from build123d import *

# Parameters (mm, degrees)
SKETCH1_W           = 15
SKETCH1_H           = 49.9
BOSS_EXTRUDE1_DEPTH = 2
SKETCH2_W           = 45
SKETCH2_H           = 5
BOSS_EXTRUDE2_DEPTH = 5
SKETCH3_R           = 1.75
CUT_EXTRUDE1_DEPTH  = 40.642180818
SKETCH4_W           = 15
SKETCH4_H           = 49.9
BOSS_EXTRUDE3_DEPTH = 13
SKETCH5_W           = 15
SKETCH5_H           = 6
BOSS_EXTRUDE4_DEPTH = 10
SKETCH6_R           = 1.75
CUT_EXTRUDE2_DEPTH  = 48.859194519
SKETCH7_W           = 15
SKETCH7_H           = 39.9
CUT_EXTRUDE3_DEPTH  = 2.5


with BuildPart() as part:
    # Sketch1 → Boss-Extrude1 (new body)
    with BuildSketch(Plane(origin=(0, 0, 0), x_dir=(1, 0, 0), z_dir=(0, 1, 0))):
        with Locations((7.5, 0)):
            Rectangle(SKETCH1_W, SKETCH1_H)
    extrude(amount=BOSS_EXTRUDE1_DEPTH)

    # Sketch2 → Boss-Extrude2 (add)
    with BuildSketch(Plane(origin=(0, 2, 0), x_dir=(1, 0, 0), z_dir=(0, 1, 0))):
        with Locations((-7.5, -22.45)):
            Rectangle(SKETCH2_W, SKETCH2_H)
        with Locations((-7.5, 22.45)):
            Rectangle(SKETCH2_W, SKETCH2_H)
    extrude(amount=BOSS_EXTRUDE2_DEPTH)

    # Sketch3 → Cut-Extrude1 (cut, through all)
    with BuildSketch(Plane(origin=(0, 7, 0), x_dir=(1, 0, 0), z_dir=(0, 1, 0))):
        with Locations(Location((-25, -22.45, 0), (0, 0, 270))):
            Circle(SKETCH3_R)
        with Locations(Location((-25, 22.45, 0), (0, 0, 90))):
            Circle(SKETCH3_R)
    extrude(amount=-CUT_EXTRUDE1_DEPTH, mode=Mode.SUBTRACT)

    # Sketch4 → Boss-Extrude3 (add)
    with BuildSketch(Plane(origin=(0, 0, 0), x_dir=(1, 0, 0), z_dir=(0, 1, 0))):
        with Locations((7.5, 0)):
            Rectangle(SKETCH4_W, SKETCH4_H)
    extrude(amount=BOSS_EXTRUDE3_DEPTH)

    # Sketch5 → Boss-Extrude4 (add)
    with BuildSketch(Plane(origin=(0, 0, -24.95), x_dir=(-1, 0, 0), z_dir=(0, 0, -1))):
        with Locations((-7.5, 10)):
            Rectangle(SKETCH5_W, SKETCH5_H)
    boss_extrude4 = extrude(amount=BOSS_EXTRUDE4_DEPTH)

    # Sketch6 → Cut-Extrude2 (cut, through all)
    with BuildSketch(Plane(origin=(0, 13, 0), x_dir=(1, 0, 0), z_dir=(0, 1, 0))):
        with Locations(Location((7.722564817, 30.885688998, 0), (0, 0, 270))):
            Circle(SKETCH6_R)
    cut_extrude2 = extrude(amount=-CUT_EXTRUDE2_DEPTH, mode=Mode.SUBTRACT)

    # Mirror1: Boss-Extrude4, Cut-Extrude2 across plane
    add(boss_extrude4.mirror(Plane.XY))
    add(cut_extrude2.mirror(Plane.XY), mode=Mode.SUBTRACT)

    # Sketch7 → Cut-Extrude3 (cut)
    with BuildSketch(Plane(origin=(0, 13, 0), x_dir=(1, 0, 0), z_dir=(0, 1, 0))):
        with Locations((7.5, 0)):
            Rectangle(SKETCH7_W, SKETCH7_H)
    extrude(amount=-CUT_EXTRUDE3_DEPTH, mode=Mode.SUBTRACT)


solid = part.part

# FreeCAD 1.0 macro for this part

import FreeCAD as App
import Part
import Sketcher
Q = App.Units.Quantity


def add_polygon(sketch, points):
    """Adds a closed chain of lines whose ends are joined by coincident constraints."""
    first, n = sketch.GeometryCount, len(points)
    for a, b in zip(points, points[1:] + points[:1]):
        sketch.addGeometry(Part.LineSegment(App.Vector(*a, 0), App.Vector(*b, 0)), False)
    for i in range(n):
        sketch.addConstraint(Sketcher.Constraint("Coincident", first + i, 2, first + (i + 1) % n, 1))

doc = App.newDocument("Part")
body = doc.addObject("PartDesign::Body", "Body")

# Sketch on XZ plane
sketch1 = body.newObject("Sketcher::SketchObject", "Sketch")
sketch1.AttachmentSupport = (doc.getObject("XZ_Plane"), [""])
sketch1.MapMode = "FlatFace"
add_polygon(sketch1, [(0, -25), (0, 25), (15, 25), (15, -25)])  # lines 0-3
sketch1.addConstraint([
    Sketcher.Constraint("Vertical", 0),
    Sketcher.Constraint("Horizontal", 1),
    Sketcher.Constraint("Vertical", 2),
    Sketcher.Constraint("Horizontal", 3),
    Sketcher.Constraint("Symmetric", 0, 2, 3, 2, -1, 1),
    Sketcher.Constraint("DistanceX", 1, 1, 1, 2, Q("15 mm")),
    Sketcher.Constraint("DistanceY", 0, 1, 0, 2, Q("49.9 mm")),
])
pad1 = body.newObject("PartDesign::Pad", "Pad")
pad1.Profile = sketch1
pad1.Length = 2
pad1.Reversed = True

# Sketch on XZ plane
sketch2 = body.newObject("Sketcher::SketchObject", "Sketch001")
sketch2.AttachmentSupport = (doc.getObject("XZ_Plane"), [""])
sketch2.MapMode = "FlatFace"
sketch2.AttachmentOffset = App.Placement(App.Vector(0, 0, -2), App.Rotation())
add_polygon(sketch2, [(-30, 20), (-30, 25), (15, 25), (15, 20)])  # lines 0-3
add_polygon(sketch2, [(-30, -25), (-30, -20), (15, -20), (15, -25)])  # lines 4-7
sketch2.addConstraint([
    Sketcher.Constraint("Vertical", 0),
    Sketcher.Constraint("Horizontal", 1),
    Sketcher.Constraint("Vertical", 2),
    Sketcher.Constraint("Horizontal", 3),
    Sketcher.Constraint("Vertical", 4),
    Sketcher.Constraint("Horizontal", 5),
    Sketcher.Constraint("Vertical", 6),
    Sketcher.Constraint("Horizontal", 7),
    Sketcher.Constraint("Symmetric", 3, 2, 4, 2, -1),
    Sketcher.Constraint("Symmetric", 1, 2, 6, 2, -1),
    Sketcher.Constraint("DistanceX", 1, 1, 1, 2, Q("45 mm")),
    Sketcher.Constraint("DistanceY", 0, 1, 0, 2, Q("5 mm")),
    Sketcher.Constraint("DistanceX", 0, 2, -1, 1, Q("30 mm")),
    Sketcher.Constraint("DistanceY", 4, 2, 3, 2, Q("39.9 mm")),
])
pad2 = body.newObject("PartDesign::Pad", "Pad001")
pad2.Profile = sketch2
pad2.Length = 5
pad2.Reversed = True

# Sketch on XZ plane
sketch3 = body.newObject("Sketcher::SketchObject", "Sketch002")
sketch3.AttachmentSupport = (doc.getObject("XZ_Plane"), [""])
sketch3.MapMode = "FlatFace"
sketch3.AttachmentOffset = App.Placement(App.Vector(0, 0, -7), App.Rotation())
sketch3.addGeometry([
    Part.Circle(App.Vector(-25, 22.4, 0), App.Vector(0, 0, 1), 1.8),
    Part.Circle(App.Vector(-25, -22.4, 0), App.Vector(0, 0, 1), 1.8),
], False)
sketch3.addConstraint([
    Sketcher.Constraint("Equal", 0, 1),
    Sketcher.Constraint("Symmetric", 0, 3, 1, 3, -1),
    Sketcher.Constraint("Diameter", 0, Q("3.5 mm")),
    Sketcher.Constraint("DistanceX", 0, 3, -1, 1, Q("25 mm")),
    Sketcher.Constraint("DistanceY", 1, 3, 0, 3, Q("44.9 mm")),
])
pocket1 = body.newObject("PartDesign::Pocket", "Pocket")
pocket1.Profile = sketch3
pocket1.Type = "ThroughAll"
pocket1.Reversed = True

# Sketch on XZ plane
sketch4 = body.newObject("Sketcher::SketchObject", "Sketch003")
sketch4.AttachmentSupport = (doc.getObject("XZ_Plane"), [""])
sketch4.MapMode = "FlatFace"
add_polygon(sketch4, [(0, -25), (0, 25), (15, 25), (15, -25)])  # lines 0-3
sketch4.addConstraint([
    Sketcher.Constraint("Vertical", 0),
    Sketcher.Constraint("Horizontal", 1),
    Sketcher.Constraint("Vertical", 2),
    Sketcher.Constraint("Horizontal", 3),
    Sketcher.Constraint("Symmetric", 0, 2, 3, 2, -1, 1),
    Sketcher.Constraint("DistanceX", 1, 1, 1, 2, Q("15 mm")),
    Sketcher.Constraint("DistanceY", 0, 1, 0, 2, Q("49.9 mm")),
])
pad3 = body.newObject("PartDesign::Pad", "Pad002")
pad3.Profile = sketch4
pad3.Length = 13
pad3.Reversed = True

# Sketch on XY plane
sketch5 = body.newObject("Sketcher::SketchObject", "Sketch004")
sketch5.AttachmentSupport = (doc.getObject("XY_Plane"), [""])
sketch5.MapMode = "FlatFace"
sketch5.AttachmentOffset = App.Placement(App.Vector(0, 0, -24.95), App.Rotation())
add_polygon(sketch5, [(15, 13), (15, 7), (0, 7), (0, 13)])  # lines 0-3
sketch5.addConstraint([
    Sketcher.Constraint("Vertical", 0),
    Sketcher.Constraint("Horizontal", 1),
    Sketcher.Constraint("Vertical", 2),
    Sketcher.Constraint("Horizontal", 3),
    Sketcher.Constraint("PointOnObject", 1, 2, -2),
    Sketcher.Constraint("DistanceX", 1, 2, 1, 1, Q("15 mm")),
    Sketcher.Constraint("DistanceY", 0, 2, 0, 1, Q("6 mm")),
    Sketcher.Constraint("DistanceY", -1, 1, 0, 2, Q("7 mm")),
])
pad4 = body.newObject("PartDesign::Pad", "Pad003")
pad4.Profile = sketch5
pad4.Length = 10
pad4.Reversed = True

# Sketch on XZ plane
sketch6 = body.newObject("Sketcher::SketchObject", "Sketch005")
sketch6.AttachmentSupport = (doc.getObject("XZ_Plane"), [""])
sketch6.MapMode = "FlatFace"
sketch6.AttachmentOffset = App.Placement(App.Vector(0, 0, -13), App.Rotation())
sketch6.addGeometry(Part.Circle(App.Vector(7.7, -30.9, 0), App.Vector(0, 0, 1), 1.8), False)
sketch6.addConstraint([
    Sketcher.Constraint("Diameter", 0, Q("3.5 mm")),
    Sketcher.Constraint("DistanceY", 0, 3, -1, 1, Q("30.885689 mm")),
    Sketcher.Constraint("DistanceX", -1, 1, 0, 3, Q("7.722565 mm")),
])
pocket2 = body.newObject("PartDesign::Pocket", "Pocket001")
pocket2.Profile = sketch6
pocket2.Type = "ThroughAll"
pocket2.Reversed = True
doc.recompute()

mirrored = body.newObject("PartDesign::Mirrored", "Mirrored")
mirrored.Originals = [pad4, pocket2]
mirrored.MirrorPlane = (doc.getObject("XY_Plane"), [""])
body.Tip = mirrored

# Sketch on XZ plane
sketch7 = body.newObject("Sketcher::SketchObject", "Sketch006")
sketch7.AttachmentSupport = (doc.getObject("XZ_Plane"), [""])
sketch7.MapMode = "FlatFace"
sketch7.AttachmentOffset = App.Placement(App.Vector(0, 0, -13), App.Rotation())
add_polygon(sketch7, [(0, -20), (0, 20), (15, 20), (15, -20)])  # lines 0-3
sketch7.addConstraint([
    Sketcher.Constraint("Vertical", 0),
    Sketcher.Constraint("Horizontal", 1),
    Sketcher.Constraint("Vertical", 2),
    Sketcher.Constraint("Horizontal", 3),
    Sketcher.Constraint("Symmetric", 0, 2, 3, 2, -1, 1),
    Sketcher.Constraint("DistanceX", 1, 1, 1, 2, Q("15 mm")),
    Sketcher.Constraint("DistanceY", 0, 1, 0, 2, Q("39.9 mm")),
])
pocket3 = body.newObject("PartDesign::Pocket", "Pocket002")
pocket3.Profile = sketch7
pocket3.Length = 2.5
pocket3.Reversed = True

doc.recompute()
